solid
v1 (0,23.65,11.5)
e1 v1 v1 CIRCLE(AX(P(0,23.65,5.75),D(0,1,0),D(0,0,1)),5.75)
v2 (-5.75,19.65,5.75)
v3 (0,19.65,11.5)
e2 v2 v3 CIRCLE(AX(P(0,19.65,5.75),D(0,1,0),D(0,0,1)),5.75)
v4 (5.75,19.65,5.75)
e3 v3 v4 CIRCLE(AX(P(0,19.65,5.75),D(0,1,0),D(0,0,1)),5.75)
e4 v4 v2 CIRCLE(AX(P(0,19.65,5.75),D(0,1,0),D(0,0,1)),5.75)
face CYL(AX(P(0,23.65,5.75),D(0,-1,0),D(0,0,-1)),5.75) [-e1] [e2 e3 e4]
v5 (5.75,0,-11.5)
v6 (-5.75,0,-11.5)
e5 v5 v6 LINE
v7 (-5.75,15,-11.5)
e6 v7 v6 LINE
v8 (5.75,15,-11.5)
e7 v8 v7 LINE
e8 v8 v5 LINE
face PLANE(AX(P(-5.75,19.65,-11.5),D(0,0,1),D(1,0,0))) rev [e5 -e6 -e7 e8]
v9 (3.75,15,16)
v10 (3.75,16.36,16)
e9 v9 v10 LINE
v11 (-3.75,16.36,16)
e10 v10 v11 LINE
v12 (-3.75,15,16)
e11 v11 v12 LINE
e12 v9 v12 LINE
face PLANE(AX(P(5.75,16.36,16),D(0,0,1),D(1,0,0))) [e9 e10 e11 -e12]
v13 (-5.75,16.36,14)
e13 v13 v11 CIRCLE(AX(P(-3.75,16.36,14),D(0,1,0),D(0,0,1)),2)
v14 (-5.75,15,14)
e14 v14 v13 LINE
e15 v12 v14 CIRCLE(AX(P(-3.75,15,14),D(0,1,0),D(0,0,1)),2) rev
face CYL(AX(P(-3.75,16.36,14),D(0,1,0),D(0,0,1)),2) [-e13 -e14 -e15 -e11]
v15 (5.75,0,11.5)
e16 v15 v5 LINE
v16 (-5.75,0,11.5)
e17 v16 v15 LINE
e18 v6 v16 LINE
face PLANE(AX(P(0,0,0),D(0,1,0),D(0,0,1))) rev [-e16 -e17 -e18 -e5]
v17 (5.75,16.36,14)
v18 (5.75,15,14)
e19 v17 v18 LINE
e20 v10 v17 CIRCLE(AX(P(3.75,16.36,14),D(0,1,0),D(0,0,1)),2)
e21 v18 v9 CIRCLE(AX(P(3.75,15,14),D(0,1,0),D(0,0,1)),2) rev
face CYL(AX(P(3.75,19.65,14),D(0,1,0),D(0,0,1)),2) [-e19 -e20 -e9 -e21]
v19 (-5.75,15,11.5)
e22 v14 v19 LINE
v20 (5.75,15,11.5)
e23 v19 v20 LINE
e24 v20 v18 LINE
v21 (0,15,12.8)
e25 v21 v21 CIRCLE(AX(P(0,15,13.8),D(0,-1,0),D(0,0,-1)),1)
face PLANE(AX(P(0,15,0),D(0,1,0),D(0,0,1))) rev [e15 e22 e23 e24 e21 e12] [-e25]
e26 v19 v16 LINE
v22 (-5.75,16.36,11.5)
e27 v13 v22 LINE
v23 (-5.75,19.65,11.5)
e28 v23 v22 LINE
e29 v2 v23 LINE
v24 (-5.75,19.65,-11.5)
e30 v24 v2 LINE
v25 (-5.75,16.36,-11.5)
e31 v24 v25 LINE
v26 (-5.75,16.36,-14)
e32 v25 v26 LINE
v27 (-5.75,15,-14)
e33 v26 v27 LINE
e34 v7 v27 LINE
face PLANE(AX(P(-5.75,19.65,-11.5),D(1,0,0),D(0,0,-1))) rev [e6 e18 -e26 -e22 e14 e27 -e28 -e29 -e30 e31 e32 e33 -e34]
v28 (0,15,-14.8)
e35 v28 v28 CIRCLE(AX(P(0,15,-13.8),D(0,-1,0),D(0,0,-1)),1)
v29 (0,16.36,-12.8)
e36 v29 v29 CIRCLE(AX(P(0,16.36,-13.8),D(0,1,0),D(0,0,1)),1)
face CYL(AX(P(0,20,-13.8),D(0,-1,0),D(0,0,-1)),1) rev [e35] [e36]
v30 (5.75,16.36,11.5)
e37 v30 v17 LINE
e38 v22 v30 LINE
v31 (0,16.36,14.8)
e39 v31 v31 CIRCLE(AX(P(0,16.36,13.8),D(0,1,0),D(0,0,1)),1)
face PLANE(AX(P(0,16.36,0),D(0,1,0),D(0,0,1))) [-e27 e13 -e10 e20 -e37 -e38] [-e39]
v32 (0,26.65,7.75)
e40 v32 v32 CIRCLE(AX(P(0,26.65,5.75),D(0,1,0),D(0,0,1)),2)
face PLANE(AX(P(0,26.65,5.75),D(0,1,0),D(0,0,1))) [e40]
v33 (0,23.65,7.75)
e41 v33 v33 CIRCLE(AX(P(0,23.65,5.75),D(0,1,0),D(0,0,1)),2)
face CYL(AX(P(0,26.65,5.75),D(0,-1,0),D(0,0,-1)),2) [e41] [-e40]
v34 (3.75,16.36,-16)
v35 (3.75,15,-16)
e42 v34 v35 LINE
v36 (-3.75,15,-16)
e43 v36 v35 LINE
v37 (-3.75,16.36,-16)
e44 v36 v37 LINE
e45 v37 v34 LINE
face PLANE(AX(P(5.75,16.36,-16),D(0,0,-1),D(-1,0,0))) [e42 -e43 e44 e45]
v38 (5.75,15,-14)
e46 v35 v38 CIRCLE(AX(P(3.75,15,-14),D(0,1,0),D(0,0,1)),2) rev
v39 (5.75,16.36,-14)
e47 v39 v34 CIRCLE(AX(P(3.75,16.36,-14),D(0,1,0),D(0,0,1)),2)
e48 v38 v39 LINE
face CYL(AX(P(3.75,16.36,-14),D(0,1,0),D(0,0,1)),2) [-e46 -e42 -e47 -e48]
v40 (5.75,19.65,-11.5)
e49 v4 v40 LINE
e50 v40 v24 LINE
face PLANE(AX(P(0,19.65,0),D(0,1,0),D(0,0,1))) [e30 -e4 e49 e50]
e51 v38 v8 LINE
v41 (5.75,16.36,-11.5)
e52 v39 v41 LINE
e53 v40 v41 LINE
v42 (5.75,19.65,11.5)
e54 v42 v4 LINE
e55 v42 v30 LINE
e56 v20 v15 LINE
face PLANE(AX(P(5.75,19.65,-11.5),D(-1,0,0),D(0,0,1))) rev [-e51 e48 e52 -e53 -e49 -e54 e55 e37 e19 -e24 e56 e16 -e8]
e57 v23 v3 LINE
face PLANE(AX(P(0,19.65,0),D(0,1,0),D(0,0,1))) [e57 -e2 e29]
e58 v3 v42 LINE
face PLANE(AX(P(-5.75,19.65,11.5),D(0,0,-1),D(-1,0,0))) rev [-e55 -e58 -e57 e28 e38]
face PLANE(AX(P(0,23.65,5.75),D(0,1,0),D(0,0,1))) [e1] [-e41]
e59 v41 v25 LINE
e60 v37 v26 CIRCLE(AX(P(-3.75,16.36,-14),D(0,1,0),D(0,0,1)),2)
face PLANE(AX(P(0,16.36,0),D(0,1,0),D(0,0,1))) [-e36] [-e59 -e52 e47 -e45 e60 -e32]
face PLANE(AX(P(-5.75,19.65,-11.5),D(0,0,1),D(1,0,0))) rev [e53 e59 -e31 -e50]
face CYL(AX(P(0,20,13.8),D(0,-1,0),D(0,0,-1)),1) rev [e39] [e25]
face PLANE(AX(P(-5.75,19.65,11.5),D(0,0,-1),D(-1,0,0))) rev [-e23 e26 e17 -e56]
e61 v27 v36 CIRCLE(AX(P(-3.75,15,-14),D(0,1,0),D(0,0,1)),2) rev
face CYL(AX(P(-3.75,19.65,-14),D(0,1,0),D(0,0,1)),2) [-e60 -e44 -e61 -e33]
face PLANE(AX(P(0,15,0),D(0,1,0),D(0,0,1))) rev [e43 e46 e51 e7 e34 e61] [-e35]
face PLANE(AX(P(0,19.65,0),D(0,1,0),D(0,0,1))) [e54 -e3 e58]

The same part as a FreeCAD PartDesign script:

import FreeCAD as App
import Part
import Sketcher
from FreeCAD import Vector


def edges_at(feature, points):
    """Names of the edges that pass closest to the given points."""
    edges = feature.Shape.Edges
    near = lambda p: min(range(len(edges)), key=lambda i: edges[i].distToShape(Part.Vertex(*p))[0])
    return sorted({f"Edge{near(p) + 1}" for p in points})

doc = App.newDocument("Part")
body = doc.addObject("PartDesign::Body", "Body")

# Sketch on XZ plane
sketch1 = doc.addObject("Sketcher::SketchObject", "Sketch")
body.addObject(sketch1)
sketch1.AttachmentSupport = (doc.XZ_Plane, [""])
sketch1.MapMode = "FlatFace"
sketch1.addGeometry(Part.LineSegment(Vector(-6, -12, 0), Vector(-6, 12, 0)), False)
sketch1.addGeometry(Part.LineSegment(Vector(-6, 12, 0), Vector(6, 12, 0)), False)
sketch1.addGeometry(Part.LineSegment(Vector(6, 12, 0), Vector(6, -12, 0)), False)
sketch1.addGeometry(Part.LineSegment(Vector(6, -12, 0), Vector(-6, -12, 0)), False)
sketch1.addConstraint(Sketcher.Constraint("Coincident", 0, 2, 1, 1))
sketch1.addConstraint(Sketcher.Constraint("Coincident", 1, 2, 2, 1))
sketch1.addConstraint(Sketcher.Constraint("Coincident", 2, 2, 3, 1))
sketch1.addConstraint(Sketcher.Constraint("Coincident", 3, 2, 0, 1))
sketch1.addConstraint(Sketcher.Constraint("Vertical", 0))
sketch1.addConstraint(Sketcher.Constraint("Horizontal", 1))
sketch1.addConstraint(Sketcher.Constraint("Vertical", 2))
sketch1.addConstraint(Sketcher.Constraint("Horizontal", 3))
sketch1.addConstraint(Sketcher.Constraint("Symmetric", 0, 2, 2, 2, -1, 1))
sketch1.addConstraint(Sketcher.Constraint("DistanceY", 0, 1, 0, 2, 23.0))
sketch1.addConstraint(Sketcher.Constraint("DistanceX", 1, 1, 1, 2, 11.5))
pad1 = doc.addObject("PartDesign::Pad", "Pad")
body.addObject(pad1)
pad1.Profile = sketch1
pad1.Length = 19.65
pad1.Reversed = True

# Sketch on XZ plane
sketch2 = doc.addObject("Sketcher::SketchObject", "Sketch001")
body.addObject(sketch2)
sketch2.AttachmentSupport = (doc.XZ_Plane, [""])
sketch2.MapMode = "FlatFace"
sketch2.AttachmentOffset = App.Placement(Vector(0, 0, -15), App.Rotation())
sketch2.addGeometry(Part.LineSegment(Vector(6, -16, 0), Vector(6, 16, 0)), False)
sketch2.addGeometry(Part.LineSegment(Vector(6, 16, 0), Vector(-6, 16, 0)), False)
sketch2.addGeometry(Part.LineSegment(Vector(-6, 16, 0), Vector(-6, -16, 0)), False)
sketch2.addGeometry(Part.LineSegment(Vector(-6, -16, 0), Vector(6, -16, 0)), False)
sketch2.addConstraint(Sketcher.Constraint("Coincident", 0, 2, 1, 1))
sketch2.addConstraint(Sketcher.Constraint("Coincident", 1, 2, 2, 1))
sketch2.addConstraint(Sketcher.Constraint("Coincident", 2, 2, 3, 1))
sketch2.addConstraint(Sketcher.Constraint("Coincident", 3, 2, 0, 1))
sketch2.addConstraint(Sketcher.Constraint("Vertical", 0))
sketch2.addConstraint(Sketcher.Constraint("Horizontal", 1))
sketch2.addConstraint(Sketcher.Constraint("Vertical", 2))
sketch2.addConstraint(Sketcher.Constraint("Horizontal", 3))
sketch2.addConstraint(Sketcher.Constraint("Symmetric", 0, 2, 2, 2, -1, 1))
sketch2.addConstraint(Sketcher.Constraint("DistanceY", 0, 1, 0, 2, 32.0))
sketch2.addConstraint(Sketcher.Constraint("DistanceX", 1, 2, 1, 1, 11.5))
pad2 = doc.addObject("PartDesign::Pad", "Pad001")
body.addObject(pad2)
pad2.Profile = sketch2
pad2.Length = 1.36
pad2.Reversed = True

# Sketch on XZ plane
sketch3 = doc.addObject("Sketcher::SketchObject", "Sketch002")
body.addObject(sketch3)
sketch3.AttachmentSupport = (doc.XZ_Plane, [""])
sketch3.MapMode = "FlatFace"
sketch3.AttachmentOffset = App.Placement(Vector(0, 0, -15), App.Rotation())
sketch3.addGeometry(Part.Circle(Vector(0, -13.8, 0), Vector(0, 0, 1), 1), False)
sketch3.addGeometry(Part.Circle(Vector(0, 13.8, 0), Vector(0, 0, 1), 1), False)
sketch3.addConstraint(Sketcher.Constraint("Equal", 0, 1))
sketch3.addConstraint(Sketcher.Constraint("Symmetric", 0, 3, 1, 3, -1, 1))
sketch3.addConstraint(Sketcher.Constraint("PointOnObject", 0, 3, -2))
sketch3.addConstraint(Sketcher.Constraint("Diameter", 0, 2.0))
sketch3.addConstraint(Sketcher.Constraint("DistanceY", 0, 3, -1, 1, 13.8))
pocket1 = doc.addObject("PartDesign::Pocket", "Pocket")
body.addObject(pocket1)
pocket1.Profile = sketch3
pocket1.Length = 5
doc.recompute()

fillet = doc.addObject("PartDesign::Fillet", "Fillet")
body.addObject(fillet)
fillet.Base = (pocket1, edges_at(pocket1, [
    (-5.75, 15.68, -16),
    (5.75, 15.68, 16),
    (-5.75, 15.68, 16),
    (5.75, 15.68, -16),
]))
fillet.Radius = 2

# Sketch on XZ plane
sketch4 = doc.addObject("Sketcher::SketchObject", "Sketch003")
body.addObject(sketch4)
sketch4.AttachmentSupport = (doc.XZ_Plane, [""])
sketch4.MapMode = "FlatFace"
sketch4.AttachmentOffset = App.Placement(Vector(0, 0, -19.65), App.Rotation())
sketch4.addGeometry(Part.Circle(Vector(0, 6, 0), Vector(0, 0, 1), 6), False)
sketch4.addConstraint(Sketcher.Constraint("PointOnObject", 0, 3, -2))
sketch4.addConstraint(Sketcher.Constraint("Diameter", 0, 11.5))
sketch4.addConstraint(Sketcher.Constraint("DistanceY", -1, 1, 0, 3, 5.75))
pad3 = doc.addObject("PartDesign::Pad", "Pad002")
body.addObject(pad3)
pad3.Profile = sketch4
pad3.Length = 4
pad3.Reversed = True

# Sketch on XZ plane
sketch5 = doc.addObject("Sketcher::SketchObject", "Sketch004")
body.addObject(sketch5)
sketch5.AttachmentSupport = (doc.XZ_Plane, [""])
sketch5.MapMode = "FlatFace"
sketch5.AttachmentOffset = App.Placement(Vector(0, 0, -23.65), App.Rotation())
sketch5.addGeometry(Part.Circle(Vector(0, 5.8, 0), Vector(0, 0, 1), 2), False)
sketch5.addConstraint(Sketcher.Constraint("PointOnObject", 0, 3, -2))
sketch5.addConstraint(Sketcher.Constraint("Diameter", 0, 4.0))
sketch5.addConstraint(Sketcher.Constraint("DistanceY", -1, 1, 0, 3, 5.75))
pad4 = doc.addObject("PartDesign::Pad", "Pad003")
body.addObject(pad4)
pad4.Profile = sketch5
pad4.Length = 3
pad4.Reversed = True

doc.recompute()
